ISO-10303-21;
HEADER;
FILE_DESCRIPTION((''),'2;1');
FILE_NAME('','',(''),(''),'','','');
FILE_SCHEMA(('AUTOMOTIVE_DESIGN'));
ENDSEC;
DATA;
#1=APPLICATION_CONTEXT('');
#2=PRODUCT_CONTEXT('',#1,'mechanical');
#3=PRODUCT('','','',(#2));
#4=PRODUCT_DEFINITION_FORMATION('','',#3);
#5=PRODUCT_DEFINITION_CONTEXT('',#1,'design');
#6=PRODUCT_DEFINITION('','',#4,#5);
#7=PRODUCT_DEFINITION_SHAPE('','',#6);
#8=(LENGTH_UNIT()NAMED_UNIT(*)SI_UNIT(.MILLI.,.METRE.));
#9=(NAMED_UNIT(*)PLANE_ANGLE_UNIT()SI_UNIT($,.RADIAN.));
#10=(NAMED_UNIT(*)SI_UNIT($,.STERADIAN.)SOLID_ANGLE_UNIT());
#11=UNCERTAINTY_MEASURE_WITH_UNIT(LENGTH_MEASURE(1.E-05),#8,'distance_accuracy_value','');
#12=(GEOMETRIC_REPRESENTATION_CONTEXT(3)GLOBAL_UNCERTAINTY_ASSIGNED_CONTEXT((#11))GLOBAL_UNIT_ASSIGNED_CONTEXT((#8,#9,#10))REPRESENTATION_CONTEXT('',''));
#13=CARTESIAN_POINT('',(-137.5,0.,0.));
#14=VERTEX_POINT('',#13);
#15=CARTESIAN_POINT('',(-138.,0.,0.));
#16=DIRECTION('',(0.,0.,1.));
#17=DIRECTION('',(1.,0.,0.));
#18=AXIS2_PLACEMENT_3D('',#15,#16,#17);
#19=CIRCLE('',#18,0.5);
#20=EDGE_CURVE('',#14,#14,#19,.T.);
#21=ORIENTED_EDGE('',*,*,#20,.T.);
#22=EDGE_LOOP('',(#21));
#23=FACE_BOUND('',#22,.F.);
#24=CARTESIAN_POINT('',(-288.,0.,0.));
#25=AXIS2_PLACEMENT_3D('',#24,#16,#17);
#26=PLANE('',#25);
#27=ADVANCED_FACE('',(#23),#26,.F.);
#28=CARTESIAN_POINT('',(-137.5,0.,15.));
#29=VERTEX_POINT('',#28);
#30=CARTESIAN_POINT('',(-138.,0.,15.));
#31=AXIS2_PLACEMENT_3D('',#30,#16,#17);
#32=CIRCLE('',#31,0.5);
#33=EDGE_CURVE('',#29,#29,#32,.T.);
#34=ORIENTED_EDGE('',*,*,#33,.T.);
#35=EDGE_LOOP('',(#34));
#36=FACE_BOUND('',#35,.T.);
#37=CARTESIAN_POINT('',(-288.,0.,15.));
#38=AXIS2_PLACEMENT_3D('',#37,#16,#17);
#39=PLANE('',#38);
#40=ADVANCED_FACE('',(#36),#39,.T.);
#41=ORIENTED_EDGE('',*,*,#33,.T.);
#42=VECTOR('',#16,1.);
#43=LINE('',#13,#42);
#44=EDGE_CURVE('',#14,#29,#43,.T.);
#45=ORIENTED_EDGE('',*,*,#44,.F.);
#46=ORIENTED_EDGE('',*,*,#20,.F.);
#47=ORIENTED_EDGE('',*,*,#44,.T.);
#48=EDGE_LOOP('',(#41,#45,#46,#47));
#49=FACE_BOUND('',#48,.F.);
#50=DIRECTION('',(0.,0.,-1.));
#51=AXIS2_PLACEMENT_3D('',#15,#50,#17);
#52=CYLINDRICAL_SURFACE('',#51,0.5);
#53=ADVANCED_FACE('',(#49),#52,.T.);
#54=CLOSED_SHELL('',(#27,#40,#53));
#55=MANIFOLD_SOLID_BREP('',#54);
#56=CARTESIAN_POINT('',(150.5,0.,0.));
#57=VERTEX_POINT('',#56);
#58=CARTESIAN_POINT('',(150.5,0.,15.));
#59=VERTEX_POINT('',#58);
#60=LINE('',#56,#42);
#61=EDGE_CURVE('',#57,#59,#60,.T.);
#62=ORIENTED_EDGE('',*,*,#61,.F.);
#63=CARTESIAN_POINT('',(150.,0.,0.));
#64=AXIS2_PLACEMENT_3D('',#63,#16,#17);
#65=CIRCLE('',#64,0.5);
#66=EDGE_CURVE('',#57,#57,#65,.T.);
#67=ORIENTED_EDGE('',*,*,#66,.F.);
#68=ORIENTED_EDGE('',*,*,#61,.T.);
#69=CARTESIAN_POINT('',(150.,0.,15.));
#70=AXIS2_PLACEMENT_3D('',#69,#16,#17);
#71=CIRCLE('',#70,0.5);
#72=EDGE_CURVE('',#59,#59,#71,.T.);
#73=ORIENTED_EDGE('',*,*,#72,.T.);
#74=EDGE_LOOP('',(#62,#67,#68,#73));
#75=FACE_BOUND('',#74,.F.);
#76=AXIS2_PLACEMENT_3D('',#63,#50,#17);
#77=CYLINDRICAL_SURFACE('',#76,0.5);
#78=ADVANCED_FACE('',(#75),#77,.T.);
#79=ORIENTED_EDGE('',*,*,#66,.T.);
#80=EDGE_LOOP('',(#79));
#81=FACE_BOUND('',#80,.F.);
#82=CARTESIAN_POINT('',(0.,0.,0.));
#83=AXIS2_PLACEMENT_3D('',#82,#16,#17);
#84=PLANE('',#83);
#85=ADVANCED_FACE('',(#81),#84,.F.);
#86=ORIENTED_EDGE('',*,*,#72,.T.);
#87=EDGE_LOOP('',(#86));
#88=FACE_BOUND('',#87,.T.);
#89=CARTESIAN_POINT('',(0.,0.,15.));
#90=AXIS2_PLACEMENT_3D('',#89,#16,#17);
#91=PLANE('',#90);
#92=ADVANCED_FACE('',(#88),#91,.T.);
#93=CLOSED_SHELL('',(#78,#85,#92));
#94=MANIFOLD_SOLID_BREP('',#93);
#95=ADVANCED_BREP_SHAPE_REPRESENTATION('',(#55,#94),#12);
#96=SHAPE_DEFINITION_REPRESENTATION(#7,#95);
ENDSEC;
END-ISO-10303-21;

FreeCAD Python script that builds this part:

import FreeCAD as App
import Part
import Sketcher
from FreeCAD import Vector

doc = App.newDocument("Part")
params = doc.addObject("Spreadsheet::Sheet", "Params")
for row, (alias, value) in enumerate([
    ("sketch1_diameter", "1 mm"),
    ("pad1_length", "15 mm"),
    ("linearpattern_pitch", "288 mm"),
], start=1):
    params.set(f"A{row}", alias)
    params.set(f"B{row}", "=" + value)
    params.setAlias(f"B{row}", alias)

body = doc.addObject("PartDesign::Body", "Body")
body.AllowCompound = True

sketch1 = body.newObject("Sketcher::SketchObject", "Sketch")
sketch1.AttachmentSupport = (doc.getObject("XY_Plane"), [""])
sketch1.MapMode = "FlatFace"
sketch1.addGeometry(Part.Circle(Vector(150, 0, 0), Vector(0, 0, 1), 0.5), False)
sketch1.addConstraint([
    Sketcher.Constraint("PointOnObject", 0, 3, -1),
    Sketcher.Constraint("Diameter", 0, 1.0),
    Sketcher.Constraint("DistanceX", -1, 1, 0, 3, 150.0),
])
sketch1.setExpression("Constraints[1]", "Params.sketch1_diameter")
pad1 = body.newObject("PartDesign::Pad", "Pad")
pad1.Profile = sketch1
pad1.setExpression("Length", "Params.pad1_length")
doc.recompute()

linearpattern = body.newObject("PartDesign::LinearPattern", "LinearPattern")
linearpattern.Originals = [pad1]
linearpattern.Direction = (doc.getObject("X_Axis"), [""])
linearpattern.Mode = "offset"
linearpattern.setExpression("Offset", "Params.linearpattern_pitch")
linearpattern.Occurrences = 2
linearpattern.Reversed = True
body.Tip = linearpattern

doc.recompute()
